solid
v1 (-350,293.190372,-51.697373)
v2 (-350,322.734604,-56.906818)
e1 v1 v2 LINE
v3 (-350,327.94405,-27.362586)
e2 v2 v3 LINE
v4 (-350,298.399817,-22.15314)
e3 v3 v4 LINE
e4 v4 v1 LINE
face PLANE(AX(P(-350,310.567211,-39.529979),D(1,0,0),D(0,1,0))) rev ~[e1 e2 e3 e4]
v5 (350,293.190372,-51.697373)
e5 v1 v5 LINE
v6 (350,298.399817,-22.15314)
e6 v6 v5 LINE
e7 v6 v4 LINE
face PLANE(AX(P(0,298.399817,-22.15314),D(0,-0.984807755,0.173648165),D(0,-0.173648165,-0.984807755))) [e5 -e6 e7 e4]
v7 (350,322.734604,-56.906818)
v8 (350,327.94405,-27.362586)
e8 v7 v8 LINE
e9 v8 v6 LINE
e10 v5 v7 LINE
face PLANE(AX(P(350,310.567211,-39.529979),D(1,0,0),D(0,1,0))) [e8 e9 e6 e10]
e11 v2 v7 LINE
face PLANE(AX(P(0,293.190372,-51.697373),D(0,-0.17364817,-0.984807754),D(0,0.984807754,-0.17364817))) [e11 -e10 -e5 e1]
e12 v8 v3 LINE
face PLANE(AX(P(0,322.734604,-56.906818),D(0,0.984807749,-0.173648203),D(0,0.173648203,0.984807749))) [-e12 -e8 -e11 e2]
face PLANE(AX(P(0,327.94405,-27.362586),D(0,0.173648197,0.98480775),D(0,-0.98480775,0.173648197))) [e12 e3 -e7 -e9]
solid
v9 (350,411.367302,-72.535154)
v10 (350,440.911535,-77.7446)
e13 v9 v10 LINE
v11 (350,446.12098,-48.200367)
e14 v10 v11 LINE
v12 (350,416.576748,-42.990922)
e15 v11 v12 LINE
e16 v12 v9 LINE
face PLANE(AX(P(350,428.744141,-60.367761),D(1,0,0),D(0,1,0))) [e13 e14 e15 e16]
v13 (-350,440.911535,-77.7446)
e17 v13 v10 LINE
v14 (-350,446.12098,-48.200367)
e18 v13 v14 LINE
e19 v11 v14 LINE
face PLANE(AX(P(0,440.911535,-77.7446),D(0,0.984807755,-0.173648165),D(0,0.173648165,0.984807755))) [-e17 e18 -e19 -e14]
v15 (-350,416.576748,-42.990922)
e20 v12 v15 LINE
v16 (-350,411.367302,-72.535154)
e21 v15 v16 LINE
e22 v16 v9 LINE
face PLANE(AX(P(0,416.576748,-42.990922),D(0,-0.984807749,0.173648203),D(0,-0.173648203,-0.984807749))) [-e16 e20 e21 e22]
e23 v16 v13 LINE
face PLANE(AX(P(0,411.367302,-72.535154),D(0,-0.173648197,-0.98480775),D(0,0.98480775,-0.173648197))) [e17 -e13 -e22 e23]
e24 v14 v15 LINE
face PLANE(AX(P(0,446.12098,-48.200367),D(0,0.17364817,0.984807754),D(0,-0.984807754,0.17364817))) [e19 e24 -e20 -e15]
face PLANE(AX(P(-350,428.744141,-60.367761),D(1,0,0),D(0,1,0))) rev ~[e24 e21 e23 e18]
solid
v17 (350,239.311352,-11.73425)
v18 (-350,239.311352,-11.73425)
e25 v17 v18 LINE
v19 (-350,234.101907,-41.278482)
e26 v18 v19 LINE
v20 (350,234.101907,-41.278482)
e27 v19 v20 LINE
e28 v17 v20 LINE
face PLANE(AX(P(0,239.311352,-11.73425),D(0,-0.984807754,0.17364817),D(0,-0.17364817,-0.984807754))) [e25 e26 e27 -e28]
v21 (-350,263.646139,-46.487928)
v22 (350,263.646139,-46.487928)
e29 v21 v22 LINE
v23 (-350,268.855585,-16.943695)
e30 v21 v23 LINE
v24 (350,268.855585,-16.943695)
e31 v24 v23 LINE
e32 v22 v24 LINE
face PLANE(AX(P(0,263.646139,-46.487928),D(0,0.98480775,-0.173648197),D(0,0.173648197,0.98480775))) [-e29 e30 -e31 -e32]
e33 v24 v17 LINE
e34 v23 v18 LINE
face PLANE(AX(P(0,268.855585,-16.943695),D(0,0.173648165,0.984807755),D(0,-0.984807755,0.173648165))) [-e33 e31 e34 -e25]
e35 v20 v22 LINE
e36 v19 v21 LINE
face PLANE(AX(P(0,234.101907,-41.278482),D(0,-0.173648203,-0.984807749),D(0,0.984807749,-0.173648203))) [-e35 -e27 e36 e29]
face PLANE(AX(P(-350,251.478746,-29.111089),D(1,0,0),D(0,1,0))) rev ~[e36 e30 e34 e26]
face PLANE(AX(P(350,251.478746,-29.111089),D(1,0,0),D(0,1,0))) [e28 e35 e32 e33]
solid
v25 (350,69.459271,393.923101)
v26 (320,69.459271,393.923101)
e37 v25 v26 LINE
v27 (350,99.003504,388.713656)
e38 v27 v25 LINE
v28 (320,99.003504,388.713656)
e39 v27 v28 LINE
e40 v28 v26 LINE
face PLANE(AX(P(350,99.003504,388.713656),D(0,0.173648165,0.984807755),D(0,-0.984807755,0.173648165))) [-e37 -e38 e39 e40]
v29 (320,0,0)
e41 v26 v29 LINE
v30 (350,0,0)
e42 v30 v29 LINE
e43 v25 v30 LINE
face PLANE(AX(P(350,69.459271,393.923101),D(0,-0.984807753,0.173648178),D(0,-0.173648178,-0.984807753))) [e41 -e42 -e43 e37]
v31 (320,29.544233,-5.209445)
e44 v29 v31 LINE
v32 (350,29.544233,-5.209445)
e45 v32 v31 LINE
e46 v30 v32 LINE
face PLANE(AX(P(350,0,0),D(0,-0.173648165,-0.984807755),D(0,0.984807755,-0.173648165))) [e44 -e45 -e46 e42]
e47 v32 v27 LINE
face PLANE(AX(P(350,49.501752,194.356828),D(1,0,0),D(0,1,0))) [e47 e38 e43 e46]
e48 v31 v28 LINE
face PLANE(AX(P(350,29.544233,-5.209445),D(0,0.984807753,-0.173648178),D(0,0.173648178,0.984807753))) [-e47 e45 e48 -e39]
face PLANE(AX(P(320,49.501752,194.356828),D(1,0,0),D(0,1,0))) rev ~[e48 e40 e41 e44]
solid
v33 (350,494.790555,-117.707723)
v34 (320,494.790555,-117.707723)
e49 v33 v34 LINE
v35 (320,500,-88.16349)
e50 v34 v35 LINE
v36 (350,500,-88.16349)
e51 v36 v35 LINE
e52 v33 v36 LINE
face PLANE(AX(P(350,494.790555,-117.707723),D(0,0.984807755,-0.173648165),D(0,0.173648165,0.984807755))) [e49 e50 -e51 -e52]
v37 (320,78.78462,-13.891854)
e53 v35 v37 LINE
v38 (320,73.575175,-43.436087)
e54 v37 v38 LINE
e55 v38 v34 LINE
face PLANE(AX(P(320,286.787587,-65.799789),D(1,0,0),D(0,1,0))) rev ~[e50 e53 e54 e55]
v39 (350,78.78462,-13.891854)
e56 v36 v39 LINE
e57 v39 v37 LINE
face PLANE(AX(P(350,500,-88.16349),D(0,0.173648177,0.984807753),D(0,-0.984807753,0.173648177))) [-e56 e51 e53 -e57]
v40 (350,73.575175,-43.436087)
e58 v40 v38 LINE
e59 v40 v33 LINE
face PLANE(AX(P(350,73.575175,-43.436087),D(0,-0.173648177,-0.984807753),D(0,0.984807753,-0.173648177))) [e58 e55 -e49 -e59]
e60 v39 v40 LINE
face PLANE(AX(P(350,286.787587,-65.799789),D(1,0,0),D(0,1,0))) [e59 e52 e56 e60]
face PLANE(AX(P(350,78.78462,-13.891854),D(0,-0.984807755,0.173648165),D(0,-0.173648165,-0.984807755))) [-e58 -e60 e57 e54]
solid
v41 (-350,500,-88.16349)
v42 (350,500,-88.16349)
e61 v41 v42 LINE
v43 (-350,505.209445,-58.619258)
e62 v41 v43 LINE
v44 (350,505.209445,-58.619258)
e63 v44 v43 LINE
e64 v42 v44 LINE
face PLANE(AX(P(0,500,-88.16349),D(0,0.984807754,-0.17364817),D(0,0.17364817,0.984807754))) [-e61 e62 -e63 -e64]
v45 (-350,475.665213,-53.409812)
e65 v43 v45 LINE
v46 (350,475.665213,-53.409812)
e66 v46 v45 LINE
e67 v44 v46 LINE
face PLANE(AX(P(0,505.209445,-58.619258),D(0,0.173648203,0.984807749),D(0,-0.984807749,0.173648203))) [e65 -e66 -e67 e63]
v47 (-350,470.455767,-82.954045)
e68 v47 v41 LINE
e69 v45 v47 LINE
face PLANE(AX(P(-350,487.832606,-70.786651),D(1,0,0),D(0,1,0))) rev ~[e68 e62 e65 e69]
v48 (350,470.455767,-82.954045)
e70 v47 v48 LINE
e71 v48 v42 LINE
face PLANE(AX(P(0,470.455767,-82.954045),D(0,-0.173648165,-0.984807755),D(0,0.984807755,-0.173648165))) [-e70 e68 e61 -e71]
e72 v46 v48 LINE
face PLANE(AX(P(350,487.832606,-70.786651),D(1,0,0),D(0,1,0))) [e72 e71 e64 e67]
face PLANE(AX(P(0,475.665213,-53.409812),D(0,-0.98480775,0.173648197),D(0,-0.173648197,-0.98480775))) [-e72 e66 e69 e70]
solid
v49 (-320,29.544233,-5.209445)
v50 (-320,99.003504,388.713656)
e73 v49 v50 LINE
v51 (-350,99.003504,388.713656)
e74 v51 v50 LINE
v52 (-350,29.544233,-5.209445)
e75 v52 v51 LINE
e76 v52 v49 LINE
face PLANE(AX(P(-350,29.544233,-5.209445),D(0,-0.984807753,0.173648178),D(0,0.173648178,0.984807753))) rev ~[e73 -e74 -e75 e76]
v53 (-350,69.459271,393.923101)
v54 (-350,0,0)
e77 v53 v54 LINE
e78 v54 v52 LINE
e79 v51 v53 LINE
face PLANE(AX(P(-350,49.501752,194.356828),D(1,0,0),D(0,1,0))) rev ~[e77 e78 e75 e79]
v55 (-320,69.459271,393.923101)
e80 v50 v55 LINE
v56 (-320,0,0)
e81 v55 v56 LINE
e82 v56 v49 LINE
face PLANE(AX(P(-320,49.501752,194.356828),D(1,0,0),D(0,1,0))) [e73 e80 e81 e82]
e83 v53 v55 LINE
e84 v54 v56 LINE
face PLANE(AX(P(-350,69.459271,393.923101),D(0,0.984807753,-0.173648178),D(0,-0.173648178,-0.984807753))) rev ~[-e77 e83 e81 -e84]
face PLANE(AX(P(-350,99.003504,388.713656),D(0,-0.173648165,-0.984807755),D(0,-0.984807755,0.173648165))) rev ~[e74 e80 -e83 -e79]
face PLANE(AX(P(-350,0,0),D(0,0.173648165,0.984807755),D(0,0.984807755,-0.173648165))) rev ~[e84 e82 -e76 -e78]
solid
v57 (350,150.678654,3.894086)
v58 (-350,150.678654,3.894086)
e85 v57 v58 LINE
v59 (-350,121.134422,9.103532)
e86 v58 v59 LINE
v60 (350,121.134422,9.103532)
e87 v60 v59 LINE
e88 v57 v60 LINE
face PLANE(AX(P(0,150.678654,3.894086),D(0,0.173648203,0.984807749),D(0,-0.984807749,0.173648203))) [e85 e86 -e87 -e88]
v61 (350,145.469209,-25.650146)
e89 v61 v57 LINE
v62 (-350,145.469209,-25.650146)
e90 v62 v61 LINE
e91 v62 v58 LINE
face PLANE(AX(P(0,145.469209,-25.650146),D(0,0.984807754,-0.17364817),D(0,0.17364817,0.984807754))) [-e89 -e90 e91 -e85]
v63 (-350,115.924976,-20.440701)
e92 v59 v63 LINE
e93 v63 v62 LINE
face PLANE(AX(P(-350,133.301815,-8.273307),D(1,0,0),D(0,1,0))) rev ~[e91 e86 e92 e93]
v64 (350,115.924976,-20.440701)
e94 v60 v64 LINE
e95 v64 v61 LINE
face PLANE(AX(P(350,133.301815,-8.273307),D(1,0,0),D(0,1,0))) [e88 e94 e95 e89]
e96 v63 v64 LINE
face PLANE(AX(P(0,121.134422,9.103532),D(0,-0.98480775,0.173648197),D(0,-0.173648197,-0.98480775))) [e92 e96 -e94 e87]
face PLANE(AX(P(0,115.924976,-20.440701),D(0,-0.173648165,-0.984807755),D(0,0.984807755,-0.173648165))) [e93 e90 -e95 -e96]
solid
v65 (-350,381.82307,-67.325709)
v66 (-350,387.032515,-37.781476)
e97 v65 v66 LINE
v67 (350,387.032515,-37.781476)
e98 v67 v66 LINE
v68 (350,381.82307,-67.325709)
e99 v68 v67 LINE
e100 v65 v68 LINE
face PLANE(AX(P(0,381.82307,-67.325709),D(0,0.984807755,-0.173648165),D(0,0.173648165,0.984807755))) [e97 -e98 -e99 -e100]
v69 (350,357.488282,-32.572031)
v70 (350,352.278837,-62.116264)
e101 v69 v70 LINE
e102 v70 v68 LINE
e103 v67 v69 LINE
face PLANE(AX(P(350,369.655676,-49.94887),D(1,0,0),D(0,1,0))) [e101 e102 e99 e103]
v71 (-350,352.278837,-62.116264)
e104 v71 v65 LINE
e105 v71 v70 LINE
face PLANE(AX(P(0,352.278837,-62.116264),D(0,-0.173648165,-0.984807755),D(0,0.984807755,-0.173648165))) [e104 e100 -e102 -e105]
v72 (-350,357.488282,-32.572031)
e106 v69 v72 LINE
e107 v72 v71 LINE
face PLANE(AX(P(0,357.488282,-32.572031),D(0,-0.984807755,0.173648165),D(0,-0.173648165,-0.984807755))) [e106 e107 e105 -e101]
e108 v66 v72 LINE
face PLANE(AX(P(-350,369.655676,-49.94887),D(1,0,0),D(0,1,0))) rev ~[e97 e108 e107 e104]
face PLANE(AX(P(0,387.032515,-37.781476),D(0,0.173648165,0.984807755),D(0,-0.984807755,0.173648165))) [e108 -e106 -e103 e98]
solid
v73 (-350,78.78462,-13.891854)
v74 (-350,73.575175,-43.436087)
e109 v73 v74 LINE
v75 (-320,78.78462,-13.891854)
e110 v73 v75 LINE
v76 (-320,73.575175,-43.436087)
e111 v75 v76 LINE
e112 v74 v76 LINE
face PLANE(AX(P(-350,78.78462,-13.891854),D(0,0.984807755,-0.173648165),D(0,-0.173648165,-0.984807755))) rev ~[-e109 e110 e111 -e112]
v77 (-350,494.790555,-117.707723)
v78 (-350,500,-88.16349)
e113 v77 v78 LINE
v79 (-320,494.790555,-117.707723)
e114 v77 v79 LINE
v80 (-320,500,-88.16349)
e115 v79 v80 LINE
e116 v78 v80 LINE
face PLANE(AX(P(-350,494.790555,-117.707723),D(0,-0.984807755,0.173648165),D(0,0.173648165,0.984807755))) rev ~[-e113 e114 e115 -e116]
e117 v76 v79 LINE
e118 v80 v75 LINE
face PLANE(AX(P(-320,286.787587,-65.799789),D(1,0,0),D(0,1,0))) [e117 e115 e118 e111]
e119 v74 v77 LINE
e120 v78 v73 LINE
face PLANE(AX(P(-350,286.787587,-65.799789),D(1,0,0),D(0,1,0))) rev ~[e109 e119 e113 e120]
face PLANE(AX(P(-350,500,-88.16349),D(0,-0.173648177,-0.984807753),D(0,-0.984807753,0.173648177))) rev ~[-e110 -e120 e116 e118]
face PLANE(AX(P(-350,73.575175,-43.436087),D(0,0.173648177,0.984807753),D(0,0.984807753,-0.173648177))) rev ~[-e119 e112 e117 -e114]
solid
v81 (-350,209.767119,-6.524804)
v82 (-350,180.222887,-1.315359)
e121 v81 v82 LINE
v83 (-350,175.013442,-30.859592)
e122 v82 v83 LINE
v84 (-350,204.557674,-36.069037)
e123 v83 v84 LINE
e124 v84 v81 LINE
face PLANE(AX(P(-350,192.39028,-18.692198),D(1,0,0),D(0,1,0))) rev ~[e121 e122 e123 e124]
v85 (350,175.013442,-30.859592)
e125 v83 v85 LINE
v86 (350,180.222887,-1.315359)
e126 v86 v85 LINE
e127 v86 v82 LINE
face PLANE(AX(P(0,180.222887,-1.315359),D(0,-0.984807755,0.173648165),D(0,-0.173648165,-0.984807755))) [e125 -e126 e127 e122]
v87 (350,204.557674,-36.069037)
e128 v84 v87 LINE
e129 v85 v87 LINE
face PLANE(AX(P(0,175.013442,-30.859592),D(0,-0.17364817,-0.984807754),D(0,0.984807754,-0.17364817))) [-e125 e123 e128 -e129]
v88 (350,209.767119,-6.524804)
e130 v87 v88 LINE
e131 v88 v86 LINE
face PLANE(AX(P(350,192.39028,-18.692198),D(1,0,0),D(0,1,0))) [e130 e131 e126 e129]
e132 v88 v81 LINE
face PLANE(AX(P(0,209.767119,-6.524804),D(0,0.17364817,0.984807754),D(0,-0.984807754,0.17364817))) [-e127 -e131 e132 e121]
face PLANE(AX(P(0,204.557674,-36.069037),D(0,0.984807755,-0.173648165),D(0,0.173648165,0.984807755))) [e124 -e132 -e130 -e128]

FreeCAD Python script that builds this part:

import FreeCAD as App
import Part
import Sketcher

V = App.Vector
Q = App.Units.Quantity

doc = App.newDocument("Part")
body = doc.addObject("PartDesign::Body", "Body")
body.AllowCompound = True

sketch1 = body.newObject("Sketcher::SketchObject", "Sketch")
sketch1.AttachmentSupport = (doc.getObject("YZ_Plane"), [""])
sketch1.MapMode = "FlatFace"
sketch1.AttachmentOffset = App.Placement(V(0, 0, -350), App.Rotation())
sketch1.addGeometry([
    Part.LineSegment(V(500, -88, 0), V(79, -14, 0)),
    Part.LineSegment(V(79, -14, 0), V(74, -43, 0)),
    Part.LineSegment(V(74, -43, 0), V(495, -118, 0)),
    Part.LineSegment(V(495, -118, 0), V(500, -88, 0)),
    Part.LineSegment(V(69, 394, 0), V(0, 0, 0)),
    Part.LineSegment(V(0, 0, 0), V(30, -5, 0)),
    Part.LineSegment(V(30, -5, 0), V(99, 389, 0)),
    Part.LineSegment(V(99, 389, 0), V(69, 394, 0)),
], False)
sketch1.addConstraint([
    Sketcher.Constraint("Coincident", 0, 2, 1, 1),
    Sketcher.Constraint("Coincident", 1, 2, 2, 1),
    Sketcher.Constraint("Coincident", 2, 2, 3, 1),
    Sketcher.Constraint("Coincident", 3, 2, 0, 1),
    Sketcher.Constraint("Coincident", 4, 2, 5, 1),
    Sketcher.Constraint("Coincident", 5, 2, 6, 1),
    Sketcher.Constraint("Coincident", 6, 2, 7, 1),
    Sketcher.Constraint("Coincident", 7, 2, 4, 1),
    Sketcher.Constraint("Coincident", 4, 2, -1, 1),
    Sketcher.Constraint("Perpendicular", 0, 1),
    Sketcher.Constraint("Perpendicular", 1, 2),
    Sketcher.Constraint("Perpendicular", 2, 3),
    Sketcher.Constraint("Parallel", 3, 4),
    Sketcher.Constraint("Perpendicular", 4, 5),
    Sketcher.Constraint("Perpendicular", 5, 6),
    Sketcher.Constraint("Perpendicular", 6, 7),
    Sketcher.Constraint("Equal", 3, 5),
    Sketcher.Constraint("Angle", 0, Q("170 deg")),
    Sketcher.Constraint("Distance", 1, Q("30 mm")),
    Sketcher.Constraint("Distance", 4, Q("400 mm")),
    Sketcher.Constraint("DistanceX", -1, 1, 3, 2, Q("500 mm")),
    Sketcher.Constraint("DistanceX", -1, 1, 0, 2, Q("78.78462 mm")),
    Sketcher.Constraint("DistanceY", 3, 2, -1, 1, Q("88.16349 mm")),
])
pad1 = body.newObject("PartDesign::Pad", "Pad")
pad1.Profile = sketch1
pad1.Length = 30
body2 = doc.addObject("PartDesign::Body", "Body001")
body2.AllowCompound = True

sketch2 = body2.newObject("Sketcher::SketchObject", "Sketch001")
sketch2.AttachmentSupport = (doc.getObject("YZ_Plane001"), [""])
sketch2.MapMode = "FlatFace"
sketch2.AttachmentOffset = App.Placement(V(0, 0, 350), App.Rotation())
sketch2.addGeometry([
    Part.LineSegment(V(69, 394, 0), V(0, 0, 0)),
    Part.LineSegment(V(0, 0, 0), V(30, -5, 0)),
    Part.LineSegment(V(30, -5, 0), V(99, 389, 0)),
    Part.LineSegment(V(99, 389, 0), V(69, 394, 0)),
    Part.LineSegment(V(500, -88, 0), V(79, -14, 0)),
    Part.LineSegment(V(79, -14, 0), V(74, -43, 0)),
    Part.LineSegment(V(74, -43, 0), V(495, -118, 0)),
    Part.LineSegment(V(495, -118, 0), V(500, -88, 0)),
], False)
sketch2.addConstraint([
    Sketcher.Constraint("Coincident", 0, 2, 1, 1),
    Sketcher.Constraint("Coincident", 1, 2, 2, 1),
    Sketcher.Constraint("Coincident", 2, 2, 3, 1),
    Sketcher.Constraint("Coincident", 3, 2, 0, 1),
    Sketcher.Constraint("Coincident", 4, 2, 5, 1),
    Sketcher.Constraint("Coincident", 5, 2, 6, 1),
    Sketcher.Constraint("Coincident", 6, 2, 7, 1),
    Sketcher.Constraint("Coincident", 7, 2, 4, 1),
    Sketcher.Constraint("Coincident", 0, 2, -1, 1),
    Sketcher.Constraint("Perpendicular", 0, 1),
    Sketcher.Constraint("Perpendicular", 1, 2),
    Sketcher.Constraint("Perpendicular", 2, 3),
    Sketcher.Constraint("Parallel", 3, 4),
    Sketcher.Constraint("Perpendicular", 4, 5),
    Sketcher.Constraint("Perpendicular", 5, 6),
    Sketcher.Constraint("Perpendicular", 6, 7),
    Sketcher.Constraint("Equal", 3, 5),
    Sketcher.Constraint("Angle", 0, Q("-100 deg")),
    Sketcher.Constraint("Distance", 0, Q("400 mm")),
    Sketcher.Constraint("Distance", 1, Q("30 mm")),
    Sketcher.Constraint("DistanceX", -1, 1, 7, 2, Q("500 mm")),
    Sketcher.Constraint("DistanceX", -1, 1, 4, 2, Q("78.78462 mm")),
    Sketcher.Constraint("DistanceY", 7, 2, -1, 1, Q("88.16349 mm")),
])
pad2 = body2.newObject("PartDesign::Pad", "Pad001")
pad2.Profile = sketch2
pad2.Length = 30
pad2.Reversed = True
body3 = doc.addObject("PartDesign::Body", "Body002")
body3.AllowCompound = True

sketch3 = body3.newObject("Sketcher::SketchObject", "Sketch002")
sketch3.AttachmentSupport = (doc.getObject("YZ_Plane002"), [""])
sketch3.MapMode = "FlatFace"
sketch3.addGeometry([
    Part.LineSegment(V(476, -53, 0), V(470, -83, 0)),
    Part.LineSegment(V(470, -83, 0), V(500, -88, 0)),
    Part.LineSegment(V(500, -88, 0), V(505, -59, 0)),
    Part.LineSegment(V(505, -59, 0), V(476, -53, 0)),
    Part.LineSegment(V(417, -43, 0), V(411, -73, 0)),
    Part.LineSegment(V(411, -73, 0), V(441, -78, 0)),
    Part.LineSegment(V(441, -78, 0), V(446, -48, 0)),
    Part.LineSegment(V(446, -48, 0), V(417, -43, 0)),
    Part.LineSegment(V(357, -33, 0), V(352, -62, 0)),
    Part.LineSegment(V(352, -62, 0), V(382, -67, 0)),
    Part.LineSegment(V(382, -67, 0), V(387, -38, 0)),
    Part.LineSegment(V(387, -38, 0), V(357, -33, 0)),
    Part.LineSegment(V(298, -22, 0), V(293, -52, 0)),
    Part.LineSegment(V(293, -52, 0), V(323, -57, 0)),
    Part.LineSegment(V(323, -57, 0), V(328, -27, 0)),
    Part.LineSegment(V(328, -27, 0), V(298, -22, 0)),
    Part.LineSegment(V(239, -12, 0), V(234, -41, 0)),
    Part.LineSegment(V(234, -41, 0), V(264, -46, 0)),
    Part.LineSegment(V(264, -46, 0), V(269, -17, 0)),
    Part.LineSegment(V(269, -17, 0), V(239, -12, 0)),
    Part.LineSegment(V(180, -1, 0), V(175, -31, 0)),
    Part.LineSegment(V(175, -31, 0), V(205, -36, 0)),
    Part.LineSegment(V(205, -36, 0), V(210, -7, 0)),
    Part.LineSegment(V(210, -7, 0), V(180, -1, 0)),
    Part.LineSegment(V(121, 9, 0), V(116, -20, 0)),
    Part.LineSegment(V(116, -20, 0), V(145, -26, 0)),
    Part.LineSegment(V(145, -26, 0), V(151, 4, 0)),
    Part.LineSegment(V(151, 4, 0), V(121, 9, 0)),
], False)
sketch3.addConstraint([
    Sketcher.Constraint("Coincident", 0, 2, 1, 1),
    Sketcher.Constraint("Coincident", 1, 2, 2, 1),
    Sketcher.Constraint("Coincident", 2, 2, 3, 1),
    Sketcher.Constraint("Coincident", 3, 2, 0, 1),
    Sketcher.Constraint("Coincident", 4, 2, 5, 1),
    Sketcher.Constraint("Coincident", 5, 2, 6, 1),
    Sketcher.Constraint("Coincident", 6, 2, 7, 1),
    Sketcher.Constraint("Coincident", 7, 2, 4, 1),
    Sketcher.Constraint("Coincident", 8, 2, 9, 1),
    Sketcher.Constraint("Coincident", 9, 2, 10, 1),
    Sketcher.Constraint("Coincident", 10, 2, 11, 1),
    Sketcher.Constraint("Coincident", 11, 2, 8, 1),
    Sketcher.Constraint("Coincident", 12, 2, 13, 1),
    Sketcher.Constraint("Coincident", 13, 2, 14, 1),
    Sketcher.Constraint("Coincident", 14, 2, 15, 1),
    Sketcher.Constraint("Coincident", 15, 2, 12, 1),
    Sketcher.Constraint("Coincident", 16, 2, 17, 1),
    Sketcher.Constraint("Coincident", 17, 2, 18, 1),
    Sketcher.Constraint("Coincident", 18, 2, 19, 1),
    Sketcher.Constraint("Coincident", 19, 2, 16, 1),
    Sketcher.Constraint("Coincident", 20, 2, 21, 1),
    Sketcher.Constraint("Coincident", 21, 2, 22, 1),
    Sketcher.Constraint("Coincident", 22, 2, 23, 1),
    Sketcher.Constraint("Coincident", 23, 2, 20, 1),
    Sketcher.Constraint("Coincident", 24, 2, 25, 1),
    Sketcher.Constraint("Coincident", 25, 2, 26, 1),
    Sketcher.Constraint("Coincident", 26, 2, 27, 1),
    Sketcher.Constraint("Coincident", 27, 2, 24, 1),
    Sketcher.Constraint("Perpendicular", 0, 1),
    Sketcher.Constraint("Perpendicular", 1, 2),
    Sketcher.Constraint("Perpendicular", 2, 3),
    Sketcher.Constraint("Perpendicular", 3, 4),
    Sketcher.Constraint("Perpendicular", 4, 5),
    Sketcher.Constraint("Perpendicular", 5, 6),
    Sketcher.Constraint("Perpendicular", 6, 7),
    Sketcher.Constraint("Perpendicular", 7, 8),
    Sketcher.Constraint("Perpendicular", 8, 9),
    Sketcher.Constraint("Perpendicular", 9, 10),
    Sketcher.Constraint("Perpendicular", 10, 11),
    Sketcher.Constraint("Perpendicular", 11, 12),
    Sketcher.Constraint("Perpendicular", 12, 13),
    Sketcher.Constraint("Perpendicular", 13, 14),
    Sketcher.Constraint("Perpendicular", 14, 15),
    Sketcher.Constraint("Perpendicular", 15, 16),
    Sketcher.Constraint("Perpendicular", 16, 17),
    Sketcher.Constraint("Perpendicular", 17, 18),
    Sketcher.Constraint("Perpendicular", 18, 19),
    Sketcher.Constraint("Perpendicular", 19, 20),
    Sketcher.Constraint("Perpendicular", 20, 21),
    Sketcher.Constraint("Perpendicular", 21, 22),
    Sketcher.Constraint("Perpendicular", 22, 23),
    Sketcher.Constraint("Perpendicular", 23, 24),
    Sketcher.Constraint("Perpendicular", 24, 25),
    Sketcher.Constraint("Perpendicular", 25, 26),
    Sketcher.Constraint("Perpendicular", 26, 27),
    Sketcher.Constraint("Equal", 0, 1),
    Sketcher.Constraint("Equal", 3, 4),
    Sketcher.Constraint("Equal", 4, 5),
    Sketcher.Constraint("Equal", 7, 8),
    Sketcher.Constraint("Equal", 8, 9),
    Sketcher.Constraint("Equal", 11, 12),
    Sketcher.Constraint("Equal", 12, 13),
    Sketcher.Constraint("Equal", 15, 16),
    Sketcher.Constraint("Equal", 16, 17),
    Sketcher.Constraint("Equal", 19, 20),
    Sketcher.Constraint("Equal", 20, 21),
    Sketcher.Constraint("Equal", 23, 24),
    Sketcher.Constraint("Equal", 24, 25),
    Sketcher.Constraint("Angle", 0, Q("-100.000001 deg")),
    Sketcher.Constraint("Distance", 0, Q("30.000001 mm")),
    Sketcher.Constraint("DistanceX", -1, 1, 1, 2, Q("500 mm")),
    Sketcher.Constraint("DistanceX", -1, 1, 4, 2, Q("411.367302 mm")),
    Sketcher.Constraint("DistanceY", 5, 2, -1, 1, Q("77.7446 mm")),
    Sketcher.Constraint("DistanceY", 24, 2, -1, 1, Q("20.440701 mm")),
    Sketcher.Constraint("DistanceX", 8, 2, 5, 2, Q("88.632698 mm")),
    Sketcher.Constraint("DistanceY", 1, 2, -1, 1, Q("88.16349 mm")),
    Sketcher.Constraint("DistanceY", 9, 2, -1, 1, Q("67.325709 mm")),
    Sketcher.Constraint("DistanceX", -1, 1, 14, 2, Q("327.94405 mm")),
    Sketcher.Constraint("DistanceY", 15, 2, -1, 1, Q("22.15314 mm")),
    Sketcher.Constraint("DistanceY", 16, 2, -1, 1, Q("41.278482 mm")),
    Sketcher.Constraint("DistanceX", -1, 1, 17, 2, Q("263.646139 mm")),
    Sketcher.Constraint("DistanceX", -1, 1, 20, 2, Q("175.013442 mm")),
    Sketcher.Constraint("DistanceY", 20, 2, -1, 1, Q("30.859592 mm")),
    Sketcher.Constraint("DistanceX", -1, 1, 25, 2, Q("145.469209 mm")),
])
pad3 = body3.newObject("PartDesign::Pad", "Pad002")
pad3.Profile = sketch3
pad3.Type = "TwoLengths"
pad3.Length = 350
pad3.Length2 = 350

doc.recompute()
